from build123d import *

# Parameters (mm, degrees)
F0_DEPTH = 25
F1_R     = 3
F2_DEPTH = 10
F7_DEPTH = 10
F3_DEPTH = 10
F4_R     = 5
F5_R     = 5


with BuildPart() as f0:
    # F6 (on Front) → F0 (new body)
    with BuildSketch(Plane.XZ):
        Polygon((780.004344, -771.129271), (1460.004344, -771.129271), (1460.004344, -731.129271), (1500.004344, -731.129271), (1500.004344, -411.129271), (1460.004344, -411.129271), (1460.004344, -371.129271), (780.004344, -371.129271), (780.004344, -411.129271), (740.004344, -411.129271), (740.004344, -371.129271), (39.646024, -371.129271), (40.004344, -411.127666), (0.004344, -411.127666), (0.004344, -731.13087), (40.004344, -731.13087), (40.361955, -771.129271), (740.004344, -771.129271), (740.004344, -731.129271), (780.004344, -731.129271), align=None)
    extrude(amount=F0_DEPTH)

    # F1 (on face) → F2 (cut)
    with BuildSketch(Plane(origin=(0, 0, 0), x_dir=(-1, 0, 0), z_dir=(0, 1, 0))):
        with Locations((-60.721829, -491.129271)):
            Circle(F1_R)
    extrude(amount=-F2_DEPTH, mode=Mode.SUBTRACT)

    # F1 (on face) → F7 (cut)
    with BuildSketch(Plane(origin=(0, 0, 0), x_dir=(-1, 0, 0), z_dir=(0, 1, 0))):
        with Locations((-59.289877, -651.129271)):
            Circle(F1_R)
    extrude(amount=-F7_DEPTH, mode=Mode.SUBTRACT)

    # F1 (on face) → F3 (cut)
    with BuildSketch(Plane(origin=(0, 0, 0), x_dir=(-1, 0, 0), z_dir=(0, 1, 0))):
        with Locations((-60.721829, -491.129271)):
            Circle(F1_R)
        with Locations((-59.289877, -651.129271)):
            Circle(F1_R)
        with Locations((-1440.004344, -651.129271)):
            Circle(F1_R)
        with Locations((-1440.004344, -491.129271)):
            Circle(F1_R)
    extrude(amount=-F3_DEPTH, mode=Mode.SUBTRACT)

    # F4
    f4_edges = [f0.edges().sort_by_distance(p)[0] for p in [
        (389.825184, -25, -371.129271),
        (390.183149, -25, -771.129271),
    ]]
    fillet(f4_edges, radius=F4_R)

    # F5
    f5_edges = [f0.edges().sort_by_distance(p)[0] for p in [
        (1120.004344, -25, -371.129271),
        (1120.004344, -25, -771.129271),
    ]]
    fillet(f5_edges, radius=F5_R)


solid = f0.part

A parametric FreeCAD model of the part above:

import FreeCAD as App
import Part
import Sketcher

V = App.Vector
Q = App.Units.Quantity


def edges_at(feature, points):
    """Names of the edges that pass closest to the given points."""
    edges = feature.Shape.Edges
    near = lambda p: min(range(len(edges)), key=lambda i: edges[i].distToShape(Part.Vertex(*p))[0])
    return sorted({f"Edge{near(p) + 1}" for p in points})

doc = App.newDocument("Part")
body = doc.addObject("PartDesign::Body", "Body")

# Sketch on XZ plane
sketch1 = body.newObject("Sketcher::SketchObject", "Sketch")
sketch1.AttachmentSupport = (doc.getObject("XZ_Plane"), [""])
sketch1.MapMode = "FlatFace"
sketch1.addGeometry(Part.LineSegment(V(780, -771, 0), V(1460, -771, 0)), False)
sketch1.addGeometry(Part.LineSegment(V(1460, -771, 0), V(1460, -731, 0)), False)
sketch1.addGeometry(Part.LineSegment(V(1460, -731, 0), V(1500, -731, 0)), False)
sketch1.addGeometry(Part.LineSegment(V(1500, -731, 0), V(1500, -411, 0)), False)
sketch1.addGeometry(Part.LineSegment(V(1500, -411, 0), V(1460, -411, 0)), False)
sketch1.addGeometry(Part.LineSegment(V(1460, -411, 0), V(1460, -371, 0)), False)
sketch1.addGeometry(Part.LineSegment(V(1460, -371, 0), V(780, -371, 0)), False)
sketch1.addGeometry(Part.LineSegment(V(780, -371, 0), V(780, -411, 0)), False)
sketch1.addGeometry(Part.LineSegment(V(780, -411, 0), V(740, -411, 0)), False)
sketch1.addGeometry(Part.LineSegment(V(740, -411, 0), V(740, -371, 0)), False)
sketch1.addGeometry(Part.LineSegment(V(740, -371, 0), V(40, -371, 0)), False)
sketch1.addGeometry(Part.LineSegment(V(40, -371, 0), V(40, -411, 0)), False)
sketch1.addGeometry(Part.LineSegment(V(40, -411, 0), V(0, -411, 0)), False)
sketch1.addGeometry(Part.LineSegment(V(0, -411, 0), V(0, -731, 0)), False)
sketch1.addGeometry(Part.LineSegment(V(0, -731, 0), V(40, -731, 0)), False)
sketch1.addGeometry(Part.LineSegment(V(40, -731, 0), V(40, -771, 0)), False)
sketch1.addGeometry(Part.LineSegment(V(40, -771, 0), V(740, -771, 0)), False)
sketch1.addGeometry(Part.LineSegment(V(740, -771, 0), V(740, -731, 0)), False)
sketch1.addGeometry(Part.LineSegment(V(740, -731, 0), V(780, -731, 0)), False)
sketch1.addGeometry(Part.LineSegment(V(780, -731, 0), V(780, -771, 0)), False)
sketch1.addConstraint(Sketcher.Constraint("Coincident", 0, 2, 1, 1))
sketch1.addConstraint(Sketcher.Constraint("Coincident", 1, 2, 2, 1))
sketch1.addConstraint(Sketcher.Constraint("Coincident", 2, 2, 3, 1))
sketch1.addConstraint(Sketcher.Constraint("Coincident", 3, 2, 4, 1))
sketch1.addConstraint(Sketcher.Constraint("Coincident", 4, 2, 5, 1))
sketch1.addConstraint(Sketcher.Constraint("Coincident", 5, 2, 6, 1))
sketch1.addConstraint(Sketcher.Constraint("Coincident", 6, 2, 7, 1))
sketch1.addConstraint(Sketcher.Constraint("Coincident", 7, 2, 8, 1))
sketch1.addConstraint(Sketcher.Constraint("Coincident", 8, 2, 9, 1))
sketch1.addConstraint(Sketcher.Constraint("Coincident", 9, 2, 10, 1))
sketch1.addConstraint(Sketcher.Constraint("Coincident", 10, 2, 11, 1))
sketch1.addConstraint(Sketcher.Constraint("Coincident", 11, 2, 12, 1))
sketch1.addConstraint(Sketcher.Constraint("Coincident", 12, 2, 13, 1))
sketch1.addConstraint(Sketcher.Constraint("Coincident", 13, 2, 14, 1))
sketch1.addConstraint(Sketcher.Constraint("Coincident", 14, 2, 15, 1))
sketch1.addConstraint(Sketcher.Constraint("Coincident", 15, 2, 16, 1))
sketch1.addConstraint(Sketcher.Constraint("Coincident", 16, 2, 17, 1))
sketch1.addConstraint(Sketcher.Constraint("Coincident", 17, 2, 18, 1))
sketch1.addConstraint(Sketcher.Constraint("Coincident", 18, 2, 19, 1))
sketch1.addConstraint(Sketcher.Constraint("Coincident", 19, 2, 0, 1))
sketch1.addConstraint(Sketcher.Constraint("Horizontal", 0))
sketch1.addConstraint(Sketcher.Constraint("Vertical", 1))
sketch1.addConstraint(Sketcher.Constraint("Horizontal", 2))
sketch1.addConstraint(Sketcher.Constraint("Vertical", 3))
sketch1.addConstraint(Sketcher.Constraint("Horizontal", 4))
sketch1.addConstraint(Sketcher.Constraint("Vertical", 5))
sketch1.addConstraint(Sketcher.Constraint("Horizontal", 6))
sketch1.addConstraint(Sketcher.Constraint("Vertical", 7))
sketch1.addConstraint(Sketcher.Constraint("Horizontal", 8))
sketch1.addConstraint(Sketcher.Constraint("Vertical", 9))
sketch1.addConstraint(Sketcher.Constraint("Horizontal", 10))
sketch1.addConstraint(Sketcher.Constraint("Horizontal", 12))
sketch1.addConstraint(Sketcher.Constraint("Vertical", 13))
sketch1.addConstraint(Sketcher.Constraint("Horizontal", 14))
sketch1.addConstraint(Sketcher.Constraint("Horizontal", 16))
sketch1.addConstraint(Sketcher.Constraint("Vertical", 17))
sketch1.addConstraint(Sketcher.Constraint("Horizontal", 18))
sketch1.addConstraint(Sketcher.Constraint("Vertical", 19))
sketch1.addConstraint(Sketcher.Constraint("Horizontal", 4, 2, 7, 2))
sketch1.addConstraint(Sketcher.Constraint("Horizontal", 6, 2, 9, 2))
sketch1.addConstraint(Sketcher.Constraint("Horizontal", 0, 2, 15, 2))
sketch1.addConstraint(Sketcher.Constraint("Horizontal", 2, 2, 17, 2))
sketch1.addConstraint(Sketcher.Constraint("Vertical", 1, 2, 4, 2))
sketch1.addConstraint(Sketcher.Constraint("Vertical", 11, 2, 14, 2))
sketch1.addConstraint(Sketcher.Constraint("Vertical", 9, 2, 16, 2))
sketch1.addConstraint(Sketcher.Constraint("Vertical", 7, 2, 18, 2))
sketch1.addConstraint(Sketcher.Constraint("Equal", 4, 8))
sketch1.addConstraint(Sketcher.Constraint("Equal", 8, 12))
sketch1.addConstraint(Sketcher.Constraint("Equal", 18, 1))
sketch1.addConstraint(Sketcher.Constraint("Equal", 1, 5))
sketch1.addConstraint(Sketcher.Constraint("Equal", 11, 15))
sketch1.addConstraint(Sketcher.Constraint("DistanceX", 0, 1, 0, 2, Q("680 mm")))
sketch1.addConstraint(Sketcher.Constraint("DistanceX", 2, 1, 2, 2, Q("40 mm")))
sketch1.addConstraint(Sketcher.Constraint("DistanceY", 3, 1, 3, 2, Q("320 mm")))
sketch1.addConstraint(Sketcher.Constraint("Distance", 11, Q("40 mm")))
sketch1.addConstraint(Sketcher.Constraint("DistanceX", 11, 2, 8, 2, Q("700 mm")))
sketch1.addConstraint(Sketcher.Constraint("DistanceX", 10, 2, 10, 1, Q("700.35832 mm")))
sketch1.addConstraint(Sketcher.Constraint("DistanceX", 16, 1, 16, 2, Q("699.642389 mm")))
sketch1.addConstraint(Sketcher.Constraint("DistanceY", 0, 2, -1, 1, Q("771.129271 mm")))
sketch1.addConstraint(Sketcher.Constraint("DistanceX", -1, 1, 0, 2, Q("1460.004344 mm")))
pad1 = body.newObject("PartDesign::Pad", "Pad")
pad1.Profile = sketch1
pad1.Length = 25

# Sketch on XZ plane
sketch2 = body.newObject("Sketcher::SketchObject", "Sketch001")
sketch2.AttachmentSupport = (doc.getObject("XZ_Plane"), [""])
sketch2.MapMode = "FlatFace"
sketch2.addGeometry(Part.Circle(V(60.7, -491.1, 0), V(0, 0, 1), 3), False)
sketch2.addConstraint(Sketcher.Constraint("Diameter", 0, Q("6 mm")))
sketch2.addConstraint(Sketcher.Constraint("DistanceX", -1, 1, 0, 3, Q("60.721829 mm")))
sketch2.addConstraint(Sketcher.Constraint("DistanceY", 0, 3, -1, 1, Q("491.129271 mm")))
pocket1 = body.newObject("PartDesign::Pocket", "Pocket")
pocket1.Profile = sketch2
pocket1.Length = 10
pocket1.Reversed = True

# Sketch on XZ plane
sketch3 = body.newObject("Sketcher::SketchObject", "Sketch002")
sketch3.AttachmentSupport = (doc.getObject("XZ_Plane"), [""])
sketch3.MapMode = "FlatFace"
sketch3.addGeometry(Part.Circle(V(59.3, -651.1, 0), V(0, 0, 1), 3), False)
sketch3.addConstraint(Sketcher.Constraint("Diameter", 0, Q("6 mm")))
sketch3.addConstraint(Sketcher.Constraint("DistanceY", 0, 3, -1, 1, Q("651.129271 mm")))
sketch3.addConstraint(Sketcher.Constraint("DistanceX", -1, 1, 0, 3, Q("59.289877 mm")))
pocket2 = body.newObject("PartDesign::Pocket", "Pocket001")
pocket2.Profile = sketch3
pocket2.Length = 10
pocket2.Reversed = True

# Sketch on XZ plane
sketch4 = body.newObject("Sketcher::SketchObject", "Sketch003")
sketch4.AttachmentSupport = (doc.getObject("XZ_Plane"), [""])
sketch4.MapMode = "FlatFace"
sketch4.addGeometry(Part.Circle(V(60.721829, -491.129271, 0), V(0, 0, 1), 3), False)
sketch4.addGeometry(Part.Circle(V(59.289877, -651.129271, 0), V(0, 0, 1), 3), False)
sketch4.addGeometry(Part.Circle(V(1440.004344, -651.129271, 0), V(0, 0, 1), 3), False)
sketch4.addGeometry(Part.Circle(V(1440.004344, -491.129271, 0), V(0, 0, 1), 3), False)
sketch4.addConstraint(Sketcher.Constraint("Equal", 0, 1))
sketch4.addConstraint(Sketcher.Constraint("Equal", 1, 2))
sketch4.addConstraint(Sketcher.Constraint("Equal", 2, 3))
sketch4.addConstraint(Sketcher.Constraint("Horizontal", 1, 3, 2, 3))
sketch4.addConstraint(Sketcher.Constraint("Horizontal", 0, 3, 3, 3))
sketch4.addConstraint(Sketcher.Constraint("Vertical", 2, 3, 3, 3))
sketch4.addConstraint(Sketcher.Constraint("Diameter", 0, Q("6 mm")))
sketch4.addConstraint(Sketcher.Constraint("DistanceY", 1, 3, 0, 3, Q("160 mm")))
sketch4.addConstraint(Sketcher.Constraint("DistanceX", -1, 1, 0, 3, Q("60.721829 mm")))
sketch4.addConstraint(Sketcher.Constraint("DistanceY", 0, 3, -1, 1, Q("491.129271 mm")))
sketch4.addConstraint(Sketcher.Constraint("DistanceX", -1, 1, 1, 3, Q("59.289877 mm")))
sketch4.addConstraint(Sketcher.Constraint("DistanceX", -1, 1, 2, 3, Q("1440.004344 mm")))
pocket3 = body.newObject("PartDesign::Pocket", "Pocket002")
pocket3.Profile = sketch4
pocket3.Length = 10
pocket3.Reversed = True
doc.recompute()

fillet = body.newObject("PartDesign::Fillet", "Fillet")
fillet.Base = (pocket3, edges_at(pocket3, [(389.825, -25, -371.129), (390.183, -25, -771.129)]))
fillet.Radius = 5
doc.recompute()

fillet2 = body.newObject("PartDesign::Fillet", "Fillet001")
fillet2.Base = (fillet, edges_at(fillet, [(1120.004, -25, -371.129), (1120.004, -25, -771.129)]))
fillet2.Radius = 5

doc.recompute()
